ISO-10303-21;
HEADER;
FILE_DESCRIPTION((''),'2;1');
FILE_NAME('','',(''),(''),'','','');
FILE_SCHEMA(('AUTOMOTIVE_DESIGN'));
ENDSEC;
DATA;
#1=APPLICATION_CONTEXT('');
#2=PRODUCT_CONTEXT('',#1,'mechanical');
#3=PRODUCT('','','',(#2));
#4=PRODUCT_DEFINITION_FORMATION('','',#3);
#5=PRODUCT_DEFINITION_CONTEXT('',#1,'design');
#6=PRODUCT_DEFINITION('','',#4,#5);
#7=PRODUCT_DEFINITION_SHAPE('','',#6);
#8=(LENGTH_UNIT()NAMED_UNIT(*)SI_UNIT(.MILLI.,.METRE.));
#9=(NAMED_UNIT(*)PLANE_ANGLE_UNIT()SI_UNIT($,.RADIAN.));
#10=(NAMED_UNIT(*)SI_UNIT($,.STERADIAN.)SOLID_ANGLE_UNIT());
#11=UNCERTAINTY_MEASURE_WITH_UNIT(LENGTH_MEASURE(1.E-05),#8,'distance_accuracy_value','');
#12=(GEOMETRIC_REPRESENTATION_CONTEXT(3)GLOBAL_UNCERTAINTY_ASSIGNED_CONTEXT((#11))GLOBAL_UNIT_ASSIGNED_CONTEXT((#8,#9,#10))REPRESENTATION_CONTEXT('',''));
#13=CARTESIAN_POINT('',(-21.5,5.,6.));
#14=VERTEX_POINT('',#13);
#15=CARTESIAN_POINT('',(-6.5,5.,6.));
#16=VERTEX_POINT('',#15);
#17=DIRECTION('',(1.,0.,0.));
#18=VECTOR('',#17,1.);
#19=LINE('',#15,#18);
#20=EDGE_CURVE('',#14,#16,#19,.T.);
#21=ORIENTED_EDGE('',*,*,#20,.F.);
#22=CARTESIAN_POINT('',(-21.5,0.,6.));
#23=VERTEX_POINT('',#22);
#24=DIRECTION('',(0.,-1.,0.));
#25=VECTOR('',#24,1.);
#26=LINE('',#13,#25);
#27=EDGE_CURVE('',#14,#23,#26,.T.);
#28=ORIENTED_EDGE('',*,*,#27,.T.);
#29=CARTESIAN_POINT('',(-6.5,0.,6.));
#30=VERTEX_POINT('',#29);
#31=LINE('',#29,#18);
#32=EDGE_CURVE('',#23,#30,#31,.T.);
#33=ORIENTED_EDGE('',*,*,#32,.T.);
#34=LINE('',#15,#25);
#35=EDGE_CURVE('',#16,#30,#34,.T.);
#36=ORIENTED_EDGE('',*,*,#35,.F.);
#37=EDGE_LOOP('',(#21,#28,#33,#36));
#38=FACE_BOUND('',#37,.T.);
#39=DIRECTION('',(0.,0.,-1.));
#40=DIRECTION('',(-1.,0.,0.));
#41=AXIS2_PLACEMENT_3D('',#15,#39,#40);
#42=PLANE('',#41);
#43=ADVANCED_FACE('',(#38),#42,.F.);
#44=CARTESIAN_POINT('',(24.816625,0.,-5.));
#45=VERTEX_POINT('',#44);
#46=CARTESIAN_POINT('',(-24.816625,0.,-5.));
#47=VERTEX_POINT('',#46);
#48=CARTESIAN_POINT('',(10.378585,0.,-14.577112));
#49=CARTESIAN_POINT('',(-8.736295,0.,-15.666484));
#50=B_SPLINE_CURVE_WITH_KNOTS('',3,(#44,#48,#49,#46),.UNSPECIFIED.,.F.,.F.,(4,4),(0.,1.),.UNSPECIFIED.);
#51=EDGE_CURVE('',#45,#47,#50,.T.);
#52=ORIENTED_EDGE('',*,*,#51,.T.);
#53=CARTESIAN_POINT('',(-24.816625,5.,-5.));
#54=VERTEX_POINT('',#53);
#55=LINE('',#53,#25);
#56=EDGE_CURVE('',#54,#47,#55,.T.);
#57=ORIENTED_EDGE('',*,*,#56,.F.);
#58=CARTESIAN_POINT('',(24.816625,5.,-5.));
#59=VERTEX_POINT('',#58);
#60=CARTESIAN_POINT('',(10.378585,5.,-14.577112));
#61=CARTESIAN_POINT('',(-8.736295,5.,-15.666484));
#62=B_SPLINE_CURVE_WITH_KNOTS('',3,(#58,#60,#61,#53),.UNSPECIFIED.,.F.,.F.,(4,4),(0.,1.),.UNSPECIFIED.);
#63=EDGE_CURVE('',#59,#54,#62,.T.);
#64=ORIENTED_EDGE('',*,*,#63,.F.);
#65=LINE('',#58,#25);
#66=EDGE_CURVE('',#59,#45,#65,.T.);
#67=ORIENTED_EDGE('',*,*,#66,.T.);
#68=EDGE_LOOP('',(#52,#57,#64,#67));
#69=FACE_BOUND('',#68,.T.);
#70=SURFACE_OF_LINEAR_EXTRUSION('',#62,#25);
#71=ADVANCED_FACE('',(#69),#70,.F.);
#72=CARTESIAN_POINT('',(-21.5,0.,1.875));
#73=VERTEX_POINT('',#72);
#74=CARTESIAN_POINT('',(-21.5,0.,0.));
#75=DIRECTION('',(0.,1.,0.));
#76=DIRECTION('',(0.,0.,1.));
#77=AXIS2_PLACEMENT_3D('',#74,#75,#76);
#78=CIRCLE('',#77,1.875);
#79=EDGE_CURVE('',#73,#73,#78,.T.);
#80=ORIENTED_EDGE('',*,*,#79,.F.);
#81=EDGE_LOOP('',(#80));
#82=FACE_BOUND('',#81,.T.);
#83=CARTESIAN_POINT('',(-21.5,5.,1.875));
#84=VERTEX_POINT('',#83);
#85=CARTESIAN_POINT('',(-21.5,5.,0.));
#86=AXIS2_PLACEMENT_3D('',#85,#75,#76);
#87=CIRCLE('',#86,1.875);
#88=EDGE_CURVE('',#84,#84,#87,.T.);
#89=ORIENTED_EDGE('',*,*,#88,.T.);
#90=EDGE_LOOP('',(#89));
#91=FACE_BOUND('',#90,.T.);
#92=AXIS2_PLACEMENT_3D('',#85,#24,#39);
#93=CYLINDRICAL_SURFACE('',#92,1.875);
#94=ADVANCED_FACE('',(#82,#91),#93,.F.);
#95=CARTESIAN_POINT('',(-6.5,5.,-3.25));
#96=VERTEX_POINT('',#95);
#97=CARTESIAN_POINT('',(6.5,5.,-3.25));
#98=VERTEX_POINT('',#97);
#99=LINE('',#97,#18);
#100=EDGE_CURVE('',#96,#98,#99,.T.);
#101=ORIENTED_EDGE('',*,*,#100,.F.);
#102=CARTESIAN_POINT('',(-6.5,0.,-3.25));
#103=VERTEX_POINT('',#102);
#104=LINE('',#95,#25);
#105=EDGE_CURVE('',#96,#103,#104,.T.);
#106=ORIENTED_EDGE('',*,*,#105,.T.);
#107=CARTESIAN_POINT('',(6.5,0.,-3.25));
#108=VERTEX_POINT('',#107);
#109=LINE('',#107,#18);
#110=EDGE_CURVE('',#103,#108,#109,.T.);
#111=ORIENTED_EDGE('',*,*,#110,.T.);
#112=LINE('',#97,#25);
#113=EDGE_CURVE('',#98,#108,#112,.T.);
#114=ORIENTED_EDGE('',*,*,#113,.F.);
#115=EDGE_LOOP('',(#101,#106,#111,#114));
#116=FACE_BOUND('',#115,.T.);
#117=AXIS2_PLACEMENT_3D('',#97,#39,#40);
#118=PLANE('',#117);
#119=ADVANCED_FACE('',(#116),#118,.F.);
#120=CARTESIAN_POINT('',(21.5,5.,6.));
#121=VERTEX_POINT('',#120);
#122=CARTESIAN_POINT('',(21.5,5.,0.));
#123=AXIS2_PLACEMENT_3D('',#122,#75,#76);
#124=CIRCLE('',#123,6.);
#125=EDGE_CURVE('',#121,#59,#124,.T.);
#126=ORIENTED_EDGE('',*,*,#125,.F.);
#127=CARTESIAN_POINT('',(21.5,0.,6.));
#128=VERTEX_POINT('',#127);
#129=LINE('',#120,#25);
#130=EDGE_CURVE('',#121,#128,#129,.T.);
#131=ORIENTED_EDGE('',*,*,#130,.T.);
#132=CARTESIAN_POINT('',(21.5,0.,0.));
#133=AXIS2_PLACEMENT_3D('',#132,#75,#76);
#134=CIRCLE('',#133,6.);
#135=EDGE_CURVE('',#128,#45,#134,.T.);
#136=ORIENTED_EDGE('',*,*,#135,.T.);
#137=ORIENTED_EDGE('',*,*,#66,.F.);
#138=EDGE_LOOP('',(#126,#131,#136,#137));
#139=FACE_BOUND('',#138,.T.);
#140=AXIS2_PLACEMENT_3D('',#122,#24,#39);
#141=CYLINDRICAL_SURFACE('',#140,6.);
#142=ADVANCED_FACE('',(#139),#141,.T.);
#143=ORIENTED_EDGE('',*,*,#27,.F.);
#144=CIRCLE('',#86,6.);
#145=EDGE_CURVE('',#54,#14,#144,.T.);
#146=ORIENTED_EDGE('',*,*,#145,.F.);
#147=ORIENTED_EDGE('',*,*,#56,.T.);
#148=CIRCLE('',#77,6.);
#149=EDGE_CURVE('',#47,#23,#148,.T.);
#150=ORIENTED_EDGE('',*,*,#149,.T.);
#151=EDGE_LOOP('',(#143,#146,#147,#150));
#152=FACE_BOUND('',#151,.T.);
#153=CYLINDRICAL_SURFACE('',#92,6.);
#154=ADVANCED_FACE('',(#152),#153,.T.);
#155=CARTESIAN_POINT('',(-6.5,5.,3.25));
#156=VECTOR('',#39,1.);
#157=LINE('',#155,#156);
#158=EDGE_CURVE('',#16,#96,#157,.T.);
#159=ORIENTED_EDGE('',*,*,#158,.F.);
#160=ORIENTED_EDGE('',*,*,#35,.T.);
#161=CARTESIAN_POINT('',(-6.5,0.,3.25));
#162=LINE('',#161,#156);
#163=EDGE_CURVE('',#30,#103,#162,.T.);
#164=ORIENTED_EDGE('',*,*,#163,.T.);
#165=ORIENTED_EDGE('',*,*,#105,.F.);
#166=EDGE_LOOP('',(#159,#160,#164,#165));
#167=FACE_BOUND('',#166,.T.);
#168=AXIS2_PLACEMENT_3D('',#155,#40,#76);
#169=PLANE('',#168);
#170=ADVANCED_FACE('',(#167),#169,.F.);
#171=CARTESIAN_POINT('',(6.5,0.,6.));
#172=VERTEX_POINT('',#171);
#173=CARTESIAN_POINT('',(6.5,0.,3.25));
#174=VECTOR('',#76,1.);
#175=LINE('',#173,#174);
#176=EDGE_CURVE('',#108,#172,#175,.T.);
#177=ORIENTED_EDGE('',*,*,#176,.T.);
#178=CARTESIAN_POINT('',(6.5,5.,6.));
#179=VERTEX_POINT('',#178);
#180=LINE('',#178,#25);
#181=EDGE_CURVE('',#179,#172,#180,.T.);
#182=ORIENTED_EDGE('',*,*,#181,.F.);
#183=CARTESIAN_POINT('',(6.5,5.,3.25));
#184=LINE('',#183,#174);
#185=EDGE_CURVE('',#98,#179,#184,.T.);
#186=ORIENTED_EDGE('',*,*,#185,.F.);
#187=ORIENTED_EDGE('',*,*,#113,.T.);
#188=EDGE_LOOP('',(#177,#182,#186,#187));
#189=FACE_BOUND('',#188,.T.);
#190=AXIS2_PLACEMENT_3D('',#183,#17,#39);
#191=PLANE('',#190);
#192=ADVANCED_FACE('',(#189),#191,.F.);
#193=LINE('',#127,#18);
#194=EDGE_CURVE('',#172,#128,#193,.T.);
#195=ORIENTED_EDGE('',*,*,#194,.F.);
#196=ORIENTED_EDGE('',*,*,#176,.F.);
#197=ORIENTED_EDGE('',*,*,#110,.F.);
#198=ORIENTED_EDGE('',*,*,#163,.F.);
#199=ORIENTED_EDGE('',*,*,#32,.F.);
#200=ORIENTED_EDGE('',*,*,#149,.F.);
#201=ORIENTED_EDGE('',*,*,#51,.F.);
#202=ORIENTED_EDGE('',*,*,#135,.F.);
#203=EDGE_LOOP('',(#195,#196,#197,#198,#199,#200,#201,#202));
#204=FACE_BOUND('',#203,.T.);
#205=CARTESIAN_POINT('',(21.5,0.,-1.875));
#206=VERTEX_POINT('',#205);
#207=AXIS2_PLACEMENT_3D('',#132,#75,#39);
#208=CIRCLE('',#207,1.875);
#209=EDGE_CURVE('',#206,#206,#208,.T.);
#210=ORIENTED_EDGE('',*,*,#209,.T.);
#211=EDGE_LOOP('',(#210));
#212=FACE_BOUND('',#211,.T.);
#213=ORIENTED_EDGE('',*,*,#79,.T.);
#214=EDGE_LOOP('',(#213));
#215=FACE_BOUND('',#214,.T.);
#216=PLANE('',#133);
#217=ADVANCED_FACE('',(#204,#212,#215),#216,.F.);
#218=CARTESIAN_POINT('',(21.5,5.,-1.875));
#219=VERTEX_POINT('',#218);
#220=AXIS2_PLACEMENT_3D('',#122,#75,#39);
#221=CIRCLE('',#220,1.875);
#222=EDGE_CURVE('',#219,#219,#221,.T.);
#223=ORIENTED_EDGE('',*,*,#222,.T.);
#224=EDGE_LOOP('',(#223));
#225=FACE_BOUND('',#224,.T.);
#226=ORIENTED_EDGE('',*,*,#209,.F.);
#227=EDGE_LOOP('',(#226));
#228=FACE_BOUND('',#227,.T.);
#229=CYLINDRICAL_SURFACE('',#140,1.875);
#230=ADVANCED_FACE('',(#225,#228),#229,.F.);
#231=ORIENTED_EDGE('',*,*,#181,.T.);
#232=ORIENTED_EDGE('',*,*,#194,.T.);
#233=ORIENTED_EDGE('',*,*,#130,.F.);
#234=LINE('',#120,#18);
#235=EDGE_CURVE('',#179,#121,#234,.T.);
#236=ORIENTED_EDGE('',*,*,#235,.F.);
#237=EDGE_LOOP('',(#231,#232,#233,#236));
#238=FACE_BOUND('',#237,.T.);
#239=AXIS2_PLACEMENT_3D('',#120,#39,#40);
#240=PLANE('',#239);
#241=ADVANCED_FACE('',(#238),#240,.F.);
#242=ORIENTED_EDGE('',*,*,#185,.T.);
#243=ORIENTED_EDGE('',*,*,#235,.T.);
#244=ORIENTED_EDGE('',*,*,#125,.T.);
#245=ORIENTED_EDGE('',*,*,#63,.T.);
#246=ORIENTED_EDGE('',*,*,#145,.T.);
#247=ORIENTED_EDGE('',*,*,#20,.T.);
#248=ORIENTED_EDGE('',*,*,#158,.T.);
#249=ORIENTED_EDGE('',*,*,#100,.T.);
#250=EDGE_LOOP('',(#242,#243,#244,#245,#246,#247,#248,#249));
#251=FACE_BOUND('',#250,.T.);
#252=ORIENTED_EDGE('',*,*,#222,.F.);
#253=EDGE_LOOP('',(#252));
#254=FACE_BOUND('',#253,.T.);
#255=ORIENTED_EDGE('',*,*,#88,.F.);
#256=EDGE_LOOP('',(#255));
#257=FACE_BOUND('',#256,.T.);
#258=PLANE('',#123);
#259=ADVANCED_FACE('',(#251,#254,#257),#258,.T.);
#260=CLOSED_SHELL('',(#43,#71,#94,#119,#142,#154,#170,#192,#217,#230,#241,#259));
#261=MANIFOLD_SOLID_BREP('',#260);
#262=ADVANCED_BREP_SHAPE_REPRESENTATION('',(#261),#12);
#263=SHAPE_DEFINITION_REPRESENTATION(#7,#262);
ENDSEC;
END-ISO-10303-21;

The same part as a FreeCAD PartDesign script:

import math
import FreeCAD as App
import Part
import Sketcher
from FreeCAD import Vector

doc = App.newDocument("Part")
body = doc.addObject("PartDesign::Body", "Body")

# Sketch on XZ plane
sketch1 = body.newObject("Sketcher::SketchObject", "Sketch")
sketch1.AttachmentSupport = (doc.getObject("XZ_Plane"), [""])
sketch1.MapMode = "FlatFace"
sketch1.addGeometry(Part.LineSegment(Vector(6.5, 6, 0), Vector(21.5, 6, 0)), False)
sketch1.addGeometry(Part.ArcOfCircle(Part.Circle(Vector(21.5, 0, 0), Vector(0, 0, 1), 6), math.radians(-56.44269), math.radians(90)), False)
sketch1.addGeometry(Part.BSplineCurve([Vector(-24.816625, -5, 0), Vector(-8.736295, -15.666484, 0), Vector(10.378585, -14.577112, 0), Vector(24.816625, -5, 0)], [4, 4], [0, 1], False, 3, [1, 1, 1, 1], False), False)
sketch1.addGeometry(Part.ArcOfCircle(Part.Circle(Vector(-21.5, 0, 0), Vector(0, 0, 1), 6), math.radians(90), math.radians(236.44269)), False)
sketch1.addGeometry(Part.LineSegment(Vector(-21.5, 6, 0), Vector(-6.5, 6, 0)), False)
sketch1.addGeometry(Part.LineSegment(Vector(-6.5, 6, 0), Vector(-6.5, -3.25, 0)), False)
sketch1.addGeometry(Part.LineSegment(Vector(-6.5, -3.25, 0), Vector(6.5, -3.25, 0)), False)
sketch1.addGeometry(Part.LineSegment(Vector(6.5, -3.25, 0), Vector(6.5, 6, 0)), False)
sketch1.addGeometry(Part.Circle(Vector(21.5, 0, 0), Vector(0, 0, 1), 1.875), False)
sketch1.addGeometry(Part.Circle(Vector(-21.5, 0, 0), Vector(0, 0, 1), 1.875), False)
sketch1.addConstraint(Sketcher.Constraint("Block", 2))
sketch1.addConstraint(Sketcher.Constraint("Coincident", 0, 2, 1, 2))
sketch1.addConstraint(Sketcher.Constraint("Coincident", 1, 1, 2, 2))
sketch1.addConstraint(Sketcher.Constraint("Coincident", 2, 1, 3, 2))
sketch1.addConstraint(Sketcher.Constraint("Coincident", 3, 1, 4, 1))
sketch1.addConstraint(Sketcher.Constraint("Coincident", 4, 2, 5, 1))
sketch1.addConstraint(Sketcher.Constraint("Coincident", 5, 2, 6, 1))
sketch1.addConstraint(Sketcher.Constraint("Coincident", 6, 2, 7, 1))
sketch1.addConstraint(Sketcher.Constraint("Coincident", 7, 2, 0, 1))
sketch1.addConstraint(Sketcher.Constraint("Horizontal", 0))
sketch1.addConstraint(Sketcher.Constraint("Horizontal", 4))
sketch1.addConstraint(Sketcher.Constraint("Vertical", 5))
sketch1.addConstraint(Sketcher.Constraint("Horizontal", 6))
sketch1.addConstraint(Sketcher.Constraint("Vertical", 7))
sketch1.addConstraint(Sketcher.Constraint("Coincident", 8, 3, 1, 3))
sketch1.addConstraint(Sketcher.Constraint("Coincident", 9, 3, 3, 3))
sketch1.addConstraint(Sketcher.Constraint("PointOnObject", 1, 3, -1))
sketch1.addConstraint(Sketcher.Constraint("PointOnObject", 3, 3, -1))
sketch1.addConstraint(Sketcher.Constraint("Radius", 1, 6.0))
sketch1.addConstraint(Sketcher.Constraint("Radius", 3, 6.0))
sketch1.addConstraint(Sketcher.Constraint("Diameter", 8, 3.75))
sketch1.addConstraint(Sketcher.Constraint("Diameter", 9, 3.75))
sketch1.addConstraint(Sketcher.Constraint("DistanceX", 0, 1, 0, 2, 15.0))
sketch1.addConstraint(Sketcher.Constraint("DistanceX", 4, 1, 4, 2, 15.0))
sketch1.addConstraint(Sketcher.Constraint("DistanceX", 6, 1, 6, 2, 13.0))
sketch1.addConstraint(Sketcher.Constraint("DistanceX", 9, 3, 0, 2, 43.0))
sketch1.addConstraint(Sketcher.Constraint("DistanceY", 5, 2, 5, 1, 9.25))
pad1 = body.newObject("PartDesign::Pad", "Pad")
pad1.Profile = sketch1
pad1.Length = 5
pad1.Reversed = True

doc.recompute()
